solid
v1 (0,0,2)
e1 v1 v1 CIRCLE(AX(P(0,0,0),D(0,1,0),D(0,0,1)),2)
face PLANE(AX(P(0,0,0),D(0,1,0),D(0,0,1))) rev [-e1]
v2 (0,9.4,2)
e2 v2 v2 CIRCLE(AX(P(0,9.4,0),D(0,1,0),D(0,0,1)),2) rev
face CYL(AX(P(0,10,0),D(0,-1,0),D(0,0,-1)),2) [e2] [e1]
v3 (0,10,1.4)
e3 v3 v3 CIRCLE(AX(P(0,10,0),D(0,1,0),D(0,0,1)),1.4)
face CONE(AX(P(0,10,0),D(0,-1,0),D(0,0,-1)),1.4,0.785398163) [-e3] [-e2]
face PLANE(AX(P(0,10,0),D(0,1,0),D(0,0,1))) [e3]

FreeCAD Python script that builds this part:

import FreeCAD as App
import Part
import Sketcher


def edges_at(feature, points):
    """Names of the edges that pass closest to the given points."""
    edges = feature.Shape.Edges
    near = lambda p: min(range(len(edges)), key=lambda i: edges[i].distToShape(Part.Vertex(*p))[0])
    return sorted({f"Edge{near(p) + 1}" for p in points})

doc = App.newDocument("Part")
body = doc.addObject("PartDesign::Body", "Body")

sketch1 = body.newObject("Sketcher::SketchObject", "Sketch")
sketch1.AttachmentSupport = (doc.getObject("XZ_Plane"), [""])
sketch1.MapMode = "FlatFace"
sketch1.addGeometry(Part.Circle(App.Vector(0, 0, 0), App.Vector(0, 0, 1), 2), False)
sketch1.addConstraint([
    Sketcher.Constraint("Coincident", 0, 3, -1, 1),
    Sketcher.Constraint("Diameter", 0, 4.0),
])
pad1 = body.newObject("PartDesign::Pad", "Pad")
pad1.Profile = sketch1
pad1.Length = 10
pad1.Reversed = True
doc.recompute()

chamfer = body.newObject("PartDesign::Chamfer", "Chamfer")
chamfer.Base = (pad1, edges_at(pad1, [(0, 10, -2)]))
chamfer.Size = 0.6

doc.recompute()
